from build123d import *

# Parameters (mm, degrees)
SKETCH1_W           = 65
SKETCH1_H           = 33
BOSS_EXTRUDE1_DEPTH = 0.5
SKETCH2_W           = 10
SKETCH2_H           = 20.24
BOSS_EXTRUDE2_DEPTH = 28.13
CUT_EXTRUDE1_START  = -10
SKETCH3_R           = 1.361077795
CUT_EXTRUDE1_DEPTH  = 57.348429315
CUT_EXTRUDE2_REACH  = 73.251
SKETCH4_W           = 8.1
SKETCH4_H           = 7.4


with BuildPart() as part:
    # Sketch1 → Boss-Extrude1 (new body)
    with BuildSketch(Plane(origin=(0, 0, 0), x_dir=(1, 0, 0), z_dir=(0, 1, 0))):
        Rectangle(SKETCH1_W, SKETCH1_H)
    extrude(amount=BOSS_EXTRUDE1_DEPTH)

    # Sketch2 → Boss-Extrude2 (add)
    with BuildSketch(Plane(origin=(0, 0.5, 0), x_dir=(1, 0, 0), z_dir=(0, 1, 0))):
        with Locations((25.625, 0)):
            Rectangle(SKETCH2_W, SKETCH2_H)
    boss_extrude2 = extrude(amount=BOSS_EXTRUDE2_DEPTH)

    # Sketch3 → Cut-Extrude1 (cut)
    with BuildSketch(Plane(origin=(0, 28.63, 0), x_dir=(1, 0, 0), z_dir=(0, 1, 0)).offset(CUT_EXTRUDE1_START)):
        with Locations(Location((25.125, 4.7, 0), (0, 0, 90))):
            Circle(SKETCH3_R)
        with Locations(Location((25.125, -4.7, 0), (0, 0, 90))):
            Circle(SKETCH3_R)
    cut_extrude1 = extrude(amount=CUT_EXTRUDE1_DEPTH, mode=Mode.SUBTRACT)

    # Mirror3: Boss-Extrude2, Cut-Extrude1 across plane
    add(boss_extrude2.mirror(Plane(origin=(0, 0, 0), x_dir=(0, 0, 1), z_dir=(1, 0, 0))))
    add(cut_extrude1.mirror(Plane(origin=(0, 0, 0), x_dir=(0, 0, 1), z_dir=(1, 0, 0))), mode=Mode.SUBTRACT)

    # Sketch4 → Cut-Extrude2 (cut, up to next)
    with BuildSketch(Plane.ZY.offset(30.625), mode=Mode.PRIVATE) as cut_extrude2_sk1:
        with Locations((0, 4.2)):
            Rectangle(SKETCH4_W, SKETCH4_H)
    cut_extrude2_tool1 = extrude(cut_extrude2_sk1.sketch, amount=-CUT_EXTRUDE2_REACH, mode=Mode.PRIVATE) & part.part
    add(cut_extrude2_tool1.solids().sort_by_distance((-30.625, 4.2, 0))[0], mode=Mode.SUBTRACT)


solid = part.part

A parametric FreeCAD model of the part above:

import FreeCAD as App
import Part
import Sketcher
from FreeCAD import Vector

doc = App.newDocument("Part")
body = doc.addObject("PartDesign::Body", "Body")

sketch1 = body.newObject("Sketcher::SketchObject", "Sketch")
sketch1.AttachmentSupport = (doc.getObject("XZ_Plane"), [""])
sketch1.MapMode = "FlatFace"
sketch1.addGeometry([
    Part.LineSegment(Vector(-32.5, -16.5, 0), Vector(-32.5, 16.5, 0)),
    Part.LineSegment(Vector(-32.5, 16.5, 0), Vector(32.5, 16.5, 0)),
    Part.LineSegment(Vector(32.5, 16.5, 0), Vector(32.5, -16.5, 0)),
    Part.LineSegment(Vector(32.5, -16.5, 0), Vector(-32.5, -16.5, 0)),
], False)
sketch1.addConstraint([
    Sketcher.Constraint("Coincident", 0, 2, 1, 1),
    Sketcher.Constraint("Coincident", 1, 2, 2, 1),
    Sketcher.Constraint("Coincident", 2, 2, 3, 1),
    Sketcher.Constraint("Coincident", 3, 2, 0, 1),
    Sketcher.Constraint("Vertical", 0),
    Sketcher.Constraint("Horizontal", 1),
    Sketcher.Constraint("Vertical", 2),
    Sketcher.Constraint("Horizontal", 3),
    Sketcher.Constraint("Symmetric", 0, 2, 2, 2, -1, 1),
    Sketcher.Constraint("DistanceX", 1, 1, 1, 2, 65.0),
    Sketcher.Constraint("DistanceY", 0, 1, 0, 2, 33.0),
])
pad1 = body.newObject("PartDesign::Pad", "Pad")
pad1.Profile = sketch1
pad1.Length = 0.5
pad1.Reversed = True

sketch2 = body.newObject("Sketcher::SketchObject", "Sketch001")
sketch2.AttachmentSupport = (doc.getObject("XZ_Plane"), [""])
sketch2.MapMode = "FlatFace"
sketch2.AttachmentOffset = App.Placement(Vector(0, 0, -0.5), App.Rotation())
sketch2.addGeometry([
    Part.LineSegment(Vector(20.625, -10.12, 0), Vector(20.625, 10.12, 0)),
    Part.LineSegment(Vector(20.625, 10.12, 0), Vector(30.625, 10.12, 0)),
    Part.LineSegment(Vector(30.625, 10.12, 0), Vector(30.625, -10.12, 0)),
    Part.LineSegment(Vector(30.625, -10.12, 0), Vector(20.625, -10.12, 0)),
], False)
sketch2.addConstraint([
    Sketcher.Constraint("Coincident", 0, 2, 1, 1),
    Sketcher.Constraint("Coincident", 1, 2, 2, 1),
    Sketcher.Constraint("Coincident", 2, 2, 3, 1),
    Sketcher.Constraint("Coincident", 3, 2, 0, 1),
    Sketcher.Constraint("Vertical", 0),
    Sketcher.Constraint("Horizontal", 1),
    Sketcher.Constraint("Vertical", 2),
    Sketcher.Constraint("Horizontal", 3),
    Sketcher.Constraint("DistanceX", 1, 1, 1, 2, 10.0),
    Sketcher.Constraint("DistanceY", 0, 1, 0, 2, 20.24),
    Sketcher.Constraint("DistanceY", -1, 1, 0, 2, 10.12),
    Sketcher.Constraint("DistanceX", -1, 1, 0, 2, 20.625),
])
pad2 = body.newObject("PartDesign::Pad", "Pad001")
pad2.Profile = sketch2
pad2.Length = 28.13
pad2.Reversed = True

sketch3 = body.newObject("Sketcher::SketchObject", "Sketch002")
sketch3.AttachmentSupport = (doc.getObject("XZ_Plane"), [""])
sketch3.MapMode = "FlatFace"
sketch3.AttachmentOffset = App.Placement(Vector(0, 0, -18.63), App.Rotation())
sketch3.addGeometry([
    Part.Circle(Vector(25.125, -4.7, 0), Vector(0, 0, 1), 1.361078),
    Part.Circle(Vector(25.125, 4.7, 0), Vector(0, 0, 1), 1.361078),
], False)
sketch3.addConstraint([
    Sketcher.Constraint("Equal", 0, 1),
    Sketcher.Constraint("Symmetric", 0, 3, 1, 3, -1),
    Sketcher.Constraint("DistanceY", 0, 3, -1, 1, 4.7),
    Sketcher.Constraint("Diameter", 0, 2.722156),
    Sketcher.Constraint("DistanceX", -1, 1, 0, 3, 25.125),
])
pocket1 = body.newObject("PartDesign::Pocket", "Pocket")
pocket1.Profile = sketch3
pocket1.Length = 57.348429
doc.recompute()

mirrored = body.newObject("PartDesign::Mirrored", "Mirrored")
mirrored.Originals = [pad2, pocket1]
mirrored.MirrorPlane = (doc.getObject("YZ_Plane"), [""])
body.Tip = mirrored

sketch4 = body.newObject("Sketcher::SketchObject", "Sketch003")
sketch4.AttachmentSupport = (doc.getObject("YZ_Plane"), [""])
sketch4.MapMode = "FlatFace"
sketch4.AttachmentOffset = App.Placement(Vector(0, 0, -30.625), App.Rotation())
sketch4.addGeometry([
    Part.LineSegment(Vector(7.9, -4.05, 0), Vector(0.5, -4.05, 0)),
    Part.LineSegment(Vector(0.5, -4.05, 0), Vector(0.5, 4.05, 0)),
    Part.LineSegment(Vector(0.5, 4.05, 0), Vector(7.9, 4.05, 0)),
    Part.LineSegment(Vector(7.9, 4.05, 0), Vector(7.9, -4.05, 0)),
], False)
sketch4.addConstraint([
    Sketcher.Constraint("Coincident", 0, 2, 1, 1),
    Sketcher.Constraint("Coincident", 1, 2, 2, 1),
    Sketcher.Constraint("Coincident", 2, 2, 3, 1),
    Sketcher.Constraint("Coincident", 3, 2, 0, 1),
    Sketcher.Constraint("Horizontal", 0),
    Sketcher.Constraint("Vertical", 1),
    Sketcher.Constraint("Horizontal", 2),
    Sketcher.Constraint("Vertical", 3),
    Sketcher.Constraint("DistanceX", 0, 2, 0, 1, 7.4),
    Sketcher.Constraint("DistanceY", 1, 1, 1, 2, 8.1),
    Sketcher.Constraint("DistanceX", -1, 1, 0, 2, 0.5),
    Sketcher.Constraint("DistanceY", 0, 2, -1, 1, 4.05),
])
pocket2 = body.newObject("PartDesign::Pocket", "Pocket001")
pocket2.Profile = sketch4
pocket2.Type = "UpToFirst"
pocket2.Reversed = True

doc.recompute()
